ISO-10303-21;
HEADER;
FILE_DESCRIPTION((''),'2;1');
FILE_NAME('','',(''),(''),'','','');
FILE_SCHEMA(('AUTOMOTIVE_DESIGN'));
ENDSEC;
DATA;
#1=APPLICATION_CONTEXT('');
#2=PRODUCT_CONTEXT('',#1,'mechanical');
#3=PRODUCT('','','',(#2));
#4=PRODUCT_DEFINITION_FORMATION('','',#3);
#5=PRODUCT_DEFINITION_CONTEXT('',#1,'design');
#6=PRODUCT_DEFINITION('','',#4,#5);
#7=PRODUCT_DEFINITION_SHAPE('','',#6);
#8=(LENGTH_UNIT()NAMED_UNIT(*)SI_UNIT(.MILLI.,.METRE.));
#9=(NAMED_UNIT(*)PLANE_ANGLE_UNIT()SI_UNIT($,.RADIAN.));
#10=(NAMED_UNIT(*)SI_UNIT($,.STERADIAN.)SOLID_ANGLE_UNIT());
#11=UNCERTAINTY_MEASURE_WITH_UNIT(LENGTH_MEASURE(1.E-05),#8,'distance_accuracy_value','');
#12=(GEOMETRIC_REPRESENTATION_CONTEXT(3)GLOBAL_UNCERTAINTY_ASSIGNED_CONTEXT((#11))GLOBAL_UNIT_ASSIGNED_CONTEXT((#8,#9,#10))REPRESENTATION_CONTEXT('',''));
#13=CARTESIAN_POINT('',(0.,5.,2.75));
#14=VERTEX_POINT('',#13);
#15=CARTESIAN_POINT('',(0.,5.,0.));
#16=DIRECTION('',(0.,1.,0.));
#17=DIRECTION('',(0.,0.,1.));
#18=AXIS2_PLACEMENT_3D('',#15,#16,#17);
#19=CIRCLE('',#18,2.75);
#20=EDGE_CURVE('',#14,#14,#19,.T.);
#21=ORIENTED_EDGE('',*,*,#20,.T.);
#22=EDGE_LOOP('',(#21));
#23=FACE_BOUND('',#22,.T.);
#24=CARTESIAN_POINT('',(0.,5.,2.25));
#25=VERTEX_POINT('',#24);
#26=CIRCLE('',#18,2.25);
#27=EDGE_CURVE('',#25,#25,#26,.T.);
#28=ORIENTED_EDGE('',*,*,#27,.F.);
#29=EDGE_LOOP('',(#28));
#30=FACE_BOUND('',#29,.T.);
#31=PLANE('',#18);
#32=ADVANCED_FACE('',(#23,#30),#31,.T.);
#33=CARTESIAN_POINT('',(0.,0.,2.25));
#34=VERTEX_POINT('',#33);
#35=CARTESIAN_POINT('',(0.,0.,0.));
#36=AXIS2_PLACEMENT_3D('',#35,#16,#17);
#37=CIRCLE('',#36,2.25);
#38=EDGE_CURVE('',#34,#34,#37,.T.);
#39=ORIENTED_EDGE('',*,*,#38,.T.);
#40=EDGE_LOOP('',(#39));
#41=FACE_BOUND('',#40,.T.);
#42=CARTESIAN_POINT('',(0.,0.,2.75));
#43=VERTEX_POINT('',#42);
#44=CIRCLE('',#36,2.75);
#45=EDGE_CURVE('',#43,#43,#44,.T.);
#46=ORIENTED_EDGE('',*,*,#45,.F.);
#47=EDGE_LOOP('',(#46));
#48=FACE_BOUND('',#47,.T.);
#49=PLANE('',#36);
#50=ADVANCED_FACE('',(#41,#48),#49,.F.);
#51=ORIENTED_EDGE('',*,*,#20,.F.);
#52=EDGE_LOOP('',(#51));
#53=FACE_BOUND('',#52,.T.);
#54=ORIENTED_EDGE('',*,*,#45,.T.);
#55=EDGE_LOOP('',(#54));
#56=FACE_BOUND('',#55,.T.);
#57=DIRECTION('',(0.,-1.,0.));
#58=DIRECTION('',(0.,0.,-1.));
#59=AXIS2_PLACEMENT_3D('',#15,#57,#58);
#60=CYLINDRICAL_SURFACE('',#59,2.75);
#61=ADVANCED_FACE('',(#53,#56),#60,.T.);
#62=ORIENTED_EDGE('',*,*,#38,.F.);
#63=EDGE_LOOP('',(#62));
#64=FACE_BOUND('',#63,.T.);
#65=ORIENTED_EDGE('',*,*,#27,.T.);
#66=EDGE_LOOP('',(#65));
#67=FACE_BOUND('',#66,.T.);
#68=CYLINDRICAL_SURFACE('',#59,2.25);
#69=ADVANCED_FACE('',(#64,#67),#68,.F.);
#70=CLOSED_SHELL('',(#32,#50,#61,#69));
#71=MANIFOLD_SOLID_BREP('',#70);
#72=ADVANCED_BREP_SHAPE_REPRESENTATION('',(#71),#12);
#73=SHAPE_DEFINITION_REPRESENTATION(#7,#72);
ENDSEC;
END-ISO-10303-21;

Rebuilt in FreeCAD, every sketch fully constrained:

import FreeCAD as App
import Part
import Sketcher

V = App.Vector
Q = App.Units.Quantity

doc = App.newDocument("Part")
body = doc.addObject("PartDesign::Body", "Body")

sketch1 = body.newObject("Sketcher::SketchObject", "Sketch")
sketch1.AttachmentSupport = (doc.getObject("XZ_Plane"), [""])
sketch1.MapMode = "FlatFace"
sketch1.addGeometry(Part.Circle(V(0, 0, 0), V(0, 0, 1), 2.8), False)
sketch1.addGeometry(Part.Circle(V(0, 0, 0), V(0, 0, 1), 2.2), False)
sketch1.addConstraint(Sketcher.Constraint("Coincident", 0, 3, -1, 1))
sketch1.addConstraint(Sketcher.Constraint("Coincident", 1, 3, -1, 1))
sketch1.addConstraint(Sketcher.Constraint("Diameter", 0, Q("5.5 mm")))
sketch1.addConstraint(Sketcher.Constraint("Diameter", 1, Q("4.5 mm")))
pad1 = body.newObject("PartDesign::Pad", "Pad")
pad1.Profile = sketch1
pad1.Length = 5
pad1.Reversed = True

doc.recompute()
